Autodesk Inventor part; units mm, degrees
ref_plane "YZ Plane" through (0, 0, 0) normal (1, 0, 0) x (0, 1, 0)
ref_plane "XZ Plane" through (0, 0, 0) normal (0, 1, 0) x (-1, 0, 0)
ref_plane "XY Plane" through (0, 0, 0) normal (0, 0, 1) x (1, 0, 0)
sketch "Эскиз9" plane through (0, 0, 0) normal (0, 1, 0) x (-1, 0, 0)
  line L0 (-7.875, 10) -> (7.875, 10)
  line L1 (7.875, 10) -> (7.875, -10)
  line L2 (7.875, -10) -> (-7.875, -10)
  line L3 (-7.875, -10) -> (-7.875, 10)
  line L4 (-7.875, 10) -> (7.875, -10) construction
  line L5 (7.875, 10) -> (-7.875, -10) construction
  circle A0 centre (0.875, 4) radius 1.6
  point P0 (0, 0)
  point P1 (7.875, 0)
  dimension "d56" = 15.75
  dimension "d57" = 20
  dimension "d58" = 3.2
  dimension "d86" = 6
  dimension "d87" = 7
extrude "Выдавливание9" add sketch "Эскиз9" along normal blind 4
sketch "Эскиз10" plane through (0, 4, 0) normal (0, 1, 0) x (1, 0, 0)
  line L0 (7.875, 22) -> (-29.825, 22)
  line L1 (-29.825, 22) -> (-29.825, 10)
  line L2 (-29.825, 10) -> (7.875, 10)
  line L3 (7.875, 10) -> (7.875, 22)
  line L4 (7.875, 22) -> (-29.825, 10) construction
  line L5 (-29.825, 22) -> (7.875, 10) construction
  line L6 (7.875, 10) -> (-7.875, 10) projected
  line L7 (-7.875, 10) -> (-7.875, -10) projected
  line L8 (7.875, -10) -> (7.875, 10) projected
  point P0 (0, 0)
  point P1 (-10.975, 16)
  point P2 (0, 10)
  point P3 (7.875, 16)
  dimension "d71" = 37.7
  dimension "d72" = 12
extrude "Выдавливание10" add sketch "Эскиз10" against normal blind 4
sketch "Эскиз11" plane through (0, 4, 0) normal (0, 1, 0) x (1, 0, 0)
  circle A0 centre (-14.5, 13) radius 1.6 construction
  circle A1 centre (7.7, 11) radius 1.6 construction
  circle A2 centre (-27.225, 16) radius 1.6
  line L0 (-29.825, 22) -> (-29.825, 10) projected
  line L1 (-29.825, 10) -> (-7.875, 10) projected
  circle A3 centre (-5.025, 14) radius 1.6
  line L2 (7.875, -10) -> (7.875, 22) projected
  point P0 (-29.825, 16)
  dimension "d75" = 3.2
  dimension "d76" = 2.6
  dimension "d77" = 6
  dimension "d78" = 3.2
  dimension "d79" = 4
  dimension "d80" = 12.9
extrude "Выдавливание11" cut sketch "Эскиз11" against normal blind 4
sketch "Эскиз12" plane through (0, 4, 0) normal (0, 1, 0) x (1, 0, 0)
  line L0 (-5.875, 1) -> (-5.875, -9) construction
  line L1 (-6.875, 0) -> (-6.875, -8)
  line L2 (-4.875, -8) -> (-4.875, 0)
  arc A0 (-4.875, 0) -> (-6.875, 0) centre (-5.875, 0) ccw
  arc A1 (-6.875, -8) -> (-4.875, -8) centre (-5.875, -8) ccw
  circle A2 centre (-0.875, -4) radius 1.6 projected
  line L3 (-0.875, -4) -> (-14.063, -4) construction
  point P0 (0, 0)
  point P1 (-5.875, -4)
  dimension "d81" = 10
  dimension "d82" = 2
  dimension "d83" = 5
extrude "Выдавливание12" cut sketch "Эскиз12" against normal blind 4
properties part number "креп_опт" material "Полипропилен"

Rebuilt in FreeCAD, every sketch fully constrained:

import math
import FreeCAD as App
import Part
import Sketcher

V = App.Vector
Q = App.Units.Quantity

doc = App.newDocument("Part")
body = doc.addObject("PartDesign::Body", "Body")

# Sketch on XZ plane
sketch1 = body.newObject("Sketcher::SketchObject", "Sketch")
sketch1.AttachmentSupport = (doc.getObject("XZ_Plane"), [""])
sketch1.MapMode = "FlatFace"
sketch1.addGeometry([
    Part.LineSegment(V(-7.9, 10, 0), V(7.9, 10, 0)),  # 0
    Part.LineSegment(V(7.9, 10, 0), V(7.9, -10, 0)),  # 1
    Part.LineSegment(V(7.9, -10, 0), V(-7.9, -10, 0)),  # 2
    Part.LineSegment(V(-7.9, -10, 0), V(-7.9, 10, 0)),  # 3
    Part.Circle(V(-0.9, 4, 0), V(0, 0, 1), 1.6),  # 4
], False)
sketch1.addConstraint([
    Sketcher.Constraint("Coincident", 0, 2, 1, 1),
    Sketcher.Constraint("Coincident", 1, 2, 2, 1),
    Sketcher.Constraint("Coincident", 2, 2, 3, 1),
    Sketcher.Constraint("Coincident", 3, 2, 0, 1),
    Sketcher.Constraint("Horizontal", 0),
    Sketcher.Constraint("Vertical", 1),
    Sketcher.Constraint("Horizontal", 2),
    Sketcher.Constraint("Vertical", 3),
    Sketcher.Constraint("Symmetric", 0, 2, 2, 2, -1, 1),
    Sketcher.Constraint("Diameter", 4, Q("3.2 mm")),
    Sketcher.Constraint("DistanceY", 1, 2, 1, 1, Q("20 mm")),
    Sketcher.Constraint("DistanceY", 4, 3, 0, 2, Q("6 mm")),
    Sketcher.Constraint("DistanceX", 2, 2, 4, 3, Q("7 mm")),
    Sketcher.Constraint("DistanceX", 0, 1, 0, 2, Q("15.75 mm")),
])
pad1 = body.newObject("PartDesign::Pad", "Pad")
pad1.Profile = sketch1
pad1.Length = 4
pad1.Reversed = True

# Sketch on XZ plane
sketch2 = body.newObject("Sketcher::SketchObject", "Sketch001")
sketch2.AttachmentSupport = (doc.getObject("XZ_Plane"), [""])
sketch2.MapMode = "FlatFace"
sketch2.AttachmentOffset = App.Placement(V(0, 0, -4), App.Rotation())
sketch2.addGeometry([
    Part.LineSegment(V(8, -10, 0), V(8, -22, 0)),
    Part.LineSegment(V(8, -22, 0), V(-30, -22, 0)),
    Part.LineSegment(V(-30, -22, 0), V(-30, -10, 0)),
    Part.LineSegment(V(-30, -10, 0), V(8, -10, 0)),
], False)
sketch2.addConstraint([
    Sketcher.Constraint("Coincident", 0, 2, 1, 1),
    Sketcher.Constraint("Coincident", 1, 2, 2, 1),
    Sketcher.Constraint("Coincident", 2, 2, 3, 1),
    Sketcher.Constraint("Coincident", 3, 2, 0, 1),
    Sketcher.Constraint("Vertical", 0),
    Sketcher.Constraint("Horizontal", 1),
    Sketcher.Constraint("Vertical", 2),
    Sketcher.Constraint("Horizontal", 3),
    Sketcher.Constraint("DistanceY", 0, 2, 0, 1, Q("12 mm")),
    Sketcher.Constraint("DistanceX", 1, 2, 1, 1, Q("37.7 mm")),
    Sketcher.Constraint("DistanceY", 0, 2, -1, 1, Q("22 mm")),
    Sketcher.Constraint("DistanceX", -1, 1, 0, 2, Q("7.875 mm")),
])
pad2 = body.newObject("PartDesign::Pad", "Pad001")
pad2.Profile = sketch2
pad2.Length = 4

# Sketch on XZ plane
sketch3 = body.newObject("Sketcher::SketchObject", "Sketch002")
sketch3.AttachmentSupport = (doc.getObject("XZ_Plane"), [""])
sketch3.MapMode = "FlatFace"
sketch3.AttachmentOffset = App.Placement(V(0, 0, -4), App.Rotation())
sketch3.addGeometry([
    Part.Circle(V(-27.2, -16, 0), V(0, 0, 1), 1.6),
    Part.Circle(V(-5, -14, 0), V(0, 0, 1), 1.6),
], False)
sketch3.addConstraint([
    Sketcher.Constraint("Equal", 0, 1),
    Sketcher.Constraint("Diameter", 0, Q("3.2 mm")),
    Sketcher.Constraint("DistanceY", 0, 3, -1, 1, Q("16 mm")),
    Sketcher.Constraint("DistanceY", 1, 3, -1, 1, Q("14 mm")),
    Sketcher.Constraint("DistanceX", 0, 3, 1, 3, Q("22.2 mm")),
    Sketcher.Constraint("DistanceX", 0, 3, -1, 1, Q("27.225 mm")),
])
pocket1 = body.newObject("PartDesign::Pocket", "Pocket")
pocket1.Profile = sketch3
pocket1.Length = 4
pocket1.Reversed = True

# Sketch on XZ plane
sketch4 = body.newObject("Sketcher::SketchObject", "Sketch003")
sketch4.AttachmentSupport = (doc.getObject("XZ_Plane"), [""])
sketch4.MapMode = "FlatFace"
sketch4.AttachmentOffset = App.Placement(V(0, 0, -4), App.Rotation())
sketch4.addGeometry([
    Part.ArcOfCircle(Part.Circle(V(-5.9, 0, 0), V(0, 0, 1), 1), math.radians(180), math.radians(360)),  # 0
    Part.LineSegment(V(-6.9, 0, 0), V(-6.9, 8, 0)),  # 1
    Part.ArcOfCircle(Part.Circle(V(-5.9, 8, 0), V(0, 0, 1), 1), math.radians(0), math.radians(180)),  # 2
    Part.LineSegment(V(-4.9, 8, 0), V(-4.9, 0, 0)),  # 3
    Part.Circle(V(-0.9, 4, 0), V(0, 0, 1), 1.6),  # 4
], False)
sketch4.addConstraint([
    Sketcher.Constraint("Tangent", 0, 1, 1, 1),
    Sketcher.Constraint("Tangent", 1, 2, 2, 2),
    Sketcher.Constraint("Tangent", 2, 1, 3, 1),
    Sketcher.Constraint("Tangent", 3, 2, 0, 2),
    Sketcher.Constraint("Vertical", 1),
    Sketcher.Constraint("Vertical", 3),
    Sketcher.Constraint("PointOnObject", 0, 3, -1),
    Sketcher.Constraint("Radius", 0, Q("1 mm")),
    Sketcher.Constraint("DistanceX", 0, 3, 4, 3, Q("5 mm")),
    Sketcher.Constraint("Diameter", 4, Q("3.2 mm")),
    Sketcher.Constraint("DistanceY", 1, 1, 1, 2, Q("8 mm")),
    Sketcher.Constraint("DistanceY", -1, 1, 4, 3, Q("4 mm")),
    Sketcher.Constraint("DistanceX", 0, 3, -1, 1, Q("5.875 mm")),
])
pocket2 = body.newObject("PartDesign::Pocket", "Pocket001")
pocket2.Profile = sketch4
pocket2.Length = 4
pocket2.Reversed = True

doc.recompute()
